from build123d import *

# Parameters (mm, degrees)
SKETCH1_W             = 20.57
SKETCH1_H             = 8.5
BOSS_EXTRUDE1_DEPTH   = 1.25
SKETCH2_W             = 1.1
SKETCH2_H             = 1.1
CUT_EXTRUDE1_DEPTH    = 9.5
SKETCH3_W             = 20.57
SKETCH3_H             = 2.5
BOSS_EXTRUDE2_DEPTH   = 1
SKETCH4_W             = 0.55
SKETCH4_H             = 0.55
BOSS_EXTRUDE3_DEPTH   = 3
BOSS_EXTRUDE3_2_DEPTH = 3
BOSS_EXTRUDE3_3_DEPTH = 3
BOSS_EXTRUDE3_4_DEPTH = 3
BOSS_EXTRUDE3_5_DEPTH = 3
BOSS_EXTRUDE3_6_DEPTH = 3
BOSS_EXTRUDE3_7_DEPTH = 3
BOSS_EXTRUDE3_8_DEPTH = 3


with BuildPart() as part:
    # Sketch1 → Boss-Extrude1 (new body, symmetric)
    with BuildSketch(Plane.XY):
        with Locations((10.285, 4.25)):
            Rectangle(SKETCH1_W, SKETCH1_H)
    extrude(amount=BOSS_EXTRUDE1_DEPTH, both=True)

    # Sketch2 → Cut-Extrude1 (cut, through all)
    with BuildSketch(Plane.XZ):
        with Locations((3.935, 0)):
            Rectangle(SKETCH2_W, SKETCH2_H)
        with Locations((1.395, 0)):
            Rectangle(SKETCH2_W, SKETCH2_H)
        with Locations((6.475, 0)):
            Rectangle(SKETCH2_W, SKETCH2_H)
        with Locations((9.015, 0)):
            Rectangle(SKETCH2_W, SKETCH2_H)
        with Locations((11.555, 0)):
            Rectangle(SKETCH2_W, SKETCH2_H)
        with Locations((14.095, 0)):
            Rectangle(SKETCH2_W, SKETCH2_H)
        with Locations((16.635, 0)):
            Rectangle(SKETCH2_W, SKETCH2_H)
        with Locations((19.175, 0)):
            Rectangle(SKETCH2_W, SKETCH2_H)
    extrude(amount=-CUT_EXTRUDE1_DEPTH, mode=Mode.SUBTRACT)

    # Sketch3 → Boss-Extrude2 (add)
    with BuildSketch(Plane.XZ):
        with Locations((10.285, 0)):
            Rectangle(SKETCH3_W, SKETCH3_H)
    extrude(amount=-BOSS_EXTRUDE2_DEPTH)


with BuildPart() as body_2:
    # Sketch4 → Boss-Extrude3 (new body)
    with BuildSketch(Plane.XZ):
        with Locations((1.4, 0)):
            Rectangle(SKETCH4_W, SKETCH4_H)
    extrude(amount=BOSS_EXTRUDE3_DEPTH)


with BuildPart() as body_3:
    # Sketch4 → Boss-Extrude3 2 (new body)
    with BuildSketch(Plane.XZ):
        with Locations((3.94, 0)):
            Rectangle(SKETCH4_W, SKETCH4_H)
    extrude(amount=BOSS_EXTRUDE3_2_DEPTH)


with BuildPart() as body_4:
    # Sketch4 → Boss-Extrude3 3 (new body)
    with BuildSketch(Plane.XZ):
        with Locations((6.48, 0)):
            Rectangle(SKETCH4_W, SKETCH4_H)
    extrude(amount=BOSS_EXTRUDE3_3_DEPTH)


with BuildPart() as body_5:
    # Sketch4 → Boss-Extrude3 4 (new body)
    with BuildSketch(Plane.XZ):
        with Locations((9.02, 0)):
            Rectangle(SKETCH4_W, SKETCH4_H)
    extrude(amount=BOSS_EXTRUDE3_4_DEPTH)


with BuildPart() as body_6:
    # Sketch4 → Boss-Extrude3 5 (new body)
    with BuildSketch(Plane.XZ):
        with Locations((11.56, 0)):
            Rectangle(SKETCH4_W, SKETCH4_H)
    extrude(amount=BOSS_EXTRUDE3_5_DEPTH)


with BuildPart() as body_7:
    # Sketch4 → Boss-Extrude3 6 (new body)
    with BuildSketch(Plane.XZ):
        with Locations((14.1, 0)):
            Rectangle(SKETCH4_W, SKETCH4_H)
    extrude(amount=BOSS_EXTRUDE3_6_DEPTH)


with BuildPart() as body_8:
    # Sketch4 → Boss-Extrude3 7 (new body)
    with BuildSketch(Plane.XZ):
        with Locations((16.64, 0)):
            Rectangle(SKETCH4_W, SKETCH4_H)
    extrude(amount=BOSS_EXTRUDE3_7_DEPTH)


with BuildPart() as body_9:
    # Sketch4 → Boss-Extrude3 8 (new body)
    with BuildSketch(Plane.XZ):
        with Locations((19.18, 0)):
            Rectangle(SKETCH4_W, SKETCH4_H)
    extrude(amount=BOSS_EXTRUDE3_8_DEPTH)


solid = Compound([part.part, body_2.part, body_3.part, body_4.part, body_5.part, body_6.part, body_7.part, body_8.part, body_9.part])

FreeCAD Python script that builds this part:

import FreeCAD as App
import Part
import Sketcher
Q = App.Units.Quantity

doc = App.newDocument("Part")
body = doc.addObject("PartDesign::Body", "Body")

sketch1 = body.newObject("Sketcher::SketchObject", "Sketch")
sketch1.AttachmentSupport = (doc.getObject("XY_Plane"), [""])
sketch1.MapMode = "FlatFace"
sketch1.addGeometry([
    Part.LineSegment(App.Vector(0, 8, 0), App.Vector(0, 0, 0)),
    Part.LineSegment(App.Vector(0, 0, 0), App.Vector(21, 0, 0)),
    Part.LineSegment(App.Vector(21, 0, 0), App.Vector(21, 8, 0)),
    Part.LineSegment(App.Vector(21, 8, 0), App.Vector(0, 8, 0)),
], False)
sketch1.addConstraint([
    Sketcher.Constraint("Coincident", 0, 2, 1, 1),
    Sketcher.Constraint("Coincident", 1, 2, 2, 1),
    Sketcher.Constraint("Coincident", 2, 2, 3, 1),
    Sketcher.Constraint("Coincident", 3, 2, 0, 1),
    Sketcher.Constraint("Vertical", 0),
    Sketcher.Constraint("Horizontal", 1),
    Sketcher.Constraint("Vertical", 2),
    Sketcher.Constraint("Horizontal", 3),
    Sketcher.Constraint("Coincident", 0, 2, -1, 1),
    Sketcher.Constraint("DistanceY", 0, 2, 0, 1, Q("8.5 mm")),
    Sketcher.Constraint("DistanceX", 1, 1, 1, 2, Q("20.57 mm")),
])
pad1 = body.newObject("PartDesign::Pad", "Pad")
pad1.Profile = sketch1
pad1.Length = 2.5
pad1.Midplane = True

sketch2 = body.newObject("Sketcher::SketchObject", "Sketch001")
sketch2.AttachmentSupport = (doc.getObject("XZ_Plane"), [""])
sketch2.MapMode = "FlatFace"
sketch2.addGeometry([
    Part.LineSegment(App.Vector(3.4, 0.6, 0), App.Vector(3.4, -0.6, 0)),
    Part.LineSegment(App.Vector(3.4, -0.6, 0), App.Vector(4.5, -0.6, 0)),
    Part.LineSegment(App.Vector(4.5, -0.6, 0), App.Vector(4.5, 0.6, 0)),
    Part.LineSegment(App.Vector(4.5, 0.6, 0), App.Vector(3.4, 0.6, 0)),
    Part.LineSegment(App.Vector(0.8, 0.6, 0), App.Vector(0.8, -0.6, 0)),
    Part.LineSegment(App.Vector(0.8, -0.6, 0), App.Vector(1.9, -0.6, 0)),
    Part.LineSegment(App.Vector(1.9, -0.6, 0), App.Vector(1.9, 0.6, 0)),
    Part.LineSegment(App.Vector(1.9, 0.6, 0), App.Vector(0.8, 0.6, 0)),
    Part.LineSegment(App.Vector(5.9, 0.6, 0), App.Vector(5.9, -0.6, 0)),
    Part.LineSegment(App.Vector(5.9, -0.6, 0), App.Vector(7, -0.6, 0)),
    Part.LineSegment(App.Vector(7, -0.6, 0), App.Vector(7, 0.6, 0)),
    Part.LineSegment(App.Vector(7, 0.6, 0), App.Vector(5.9, 0.6, 0)),
    Part.LineSegment(App.Vector(8.5, 0.6, 0), App.Vector(8.5, -0.6, 0)),
    Part.LineSegment(App.Vector(8.5, -0.6, 0), App.Vector(9.6, -0.6, 0)),
    Part.LineSegment(App.Vector(9.6, -0.6, 0), App.Vector(9.6, 0.6, 0)),
    Part.LineSegment(App.Vector(9.6, 0.6, 0), App.Vector(8.5, 0.6, 0)),
    Part.LineSegment(App.Vector(11, 0.6, 0), App.Vector(11, -0.6, 0)),
    Part.LineSegment(App.Vector(11, -0.6, 0), App.Vector(12.1, -0.6, 0)),
    Part.LineSegment(App.Vector(12.1, -0.6, 0), App.Vector(12.1, 0.6, 0)),
    Part.LineSegment(App.Vector(12.1, 0.6, 0), App.Vector(11, 0.6, 0)),
    Part.LineSegment(App.Vector(13.5, 0.6, 0), App.Vector(13.5, -0.6, 0)),
    Part.LineSegment(App.Vector(13.5, -0.6, 0), App.Vector(14.6, -0.6, 0)),
    Part.LineSegment(App.Vector(14.6, -0.6, 0), App.Vector(14.6, 0.6, 0)),
    Part.LineSegment(App.Vector(14.6, 0.6, 0), App.Vector(13.5, 0.6, 0)),
    Part.LineSegment(App.Vector(16.1, 0.6, 0), App.Vector(16.1, -0.6, 0)),
    Part.LineSegment(App.Vector(16.1, -0.6, 0), App.Vector(17.2, -0.6, 0)),
    Part.LineSegment(App.Vector(17.2, -0.6, 0), App.Vector(17.2, 0.6, 0)),
    Part.LineSegment(App.Vector(17.2, 0.6, 0), App.Vector(16.1, 0.6, 0)),
    Part.LineSegment(App.Vector(18.6, 0.6, 0), App.Vector(18.6, -0.6, 0)),
    Part.LineSegment(App.Vector(18.6, -0.6, 0), App.Vector(19.7, -0.6, 0)),
    Part.LineSegment(App.Vector(19.7, -0.6, 0), App.Vector(19.7, 0.6, 0)),
    Part.LineSegment(App.Vector(19.7, 0.6, 0), App.Vector(18.6, 0.6, 0)),
], False)
sketch2.addConstraint([
    Sketcher.Constraint("Coincident", 0, 2, 1, 1),
    Sketcher.Constraint("Coincident", 1, 2, 2, 1),
    Sketcher.Constraint("Coincident", 2, 2, 3, 1),
    Sketcher.Constraint("Coincident", 3, 2, 0, 1),
    Sketcher.Constraint("Coincident", 4, 2, 5, 1),
    Sketcher.Constraint("Coincident", 5, 2, 6, 1),
    Sketcher.Constraint("Coincident", 6, 2, 7, 1),
    Sketcher.Constraint("Coincident", 7, 2, 4, 1),
    Sketcher.Constraint("Coincident", 8, 2, 9, 1),
    Sketcher.Constraint("Coincident", 9, 2, 10, 1),
    Sketcher.Constraint("Coincident", 10, 2, 11, 1),
    Sketcher.Constraint("Coincident", 11, 2, 8, 1),
    Sketcher.Constraint("Coincident", 12, 2, 13, 1),
    Sketcher.Constraint("Coincident", 13, 2, 14, 1),
    Sketcher.Constraint("Coincident", 14, 2, 15, 1),
    Sketcher.Constraint("Coincident", 15, 2, 12, 1),
    Sketcher.Constraint("Coincident", 16, 2, 17, 1),
    Sketcher.Constraint("Coincident", 17, 2, 18, 1),
    Sketcher.Constraint("Coincident", 18, 2, 19, 1),
    Sketcher.Constraint("Coincident", 19, 2, 16, 1),
    Sketcher.Constraint("Coincident", 20, 2, 21, 1),
    Sketcher.Constraint("Coincident", 21, 2, 22, 1),
    Sketcher.Constraint("Coincident", 22, 2, 23, 1),
    Sketcher.Constraint("Coincident", 23, 2, 20, 1),
    Sketcher.Constraint("Coincident", 24, 2, 25, 1),
    Sketcher.Constraint("Coincident", 25, 2, 26, 1),
    Sketcher.Constraint("Coincident", 26, 2, 27, 1),
    Sketcher.Constraint("Coincident", 27, 2, 24, 1),
    Sketcher.Constraint("Coincident", 28, 2, 29, 1),
    Sketcher.Constraint("Coincident", 29, 2, 30, 1),
    Sketcher.Constraint("Coincident", 30, 2, 31, 1),
    Sketcher.Constraint("Coincident", 31, 2, 28, 1),
    Sketcher.Constraint("Vertical", 0),
    Sketcher.Constraint("Horizontal", 1),
    Sketcher.Constraint("Vertical", 2),
    Sketcher.Constraint("Horizontal", 3),
    Sketcher.Constraint("Vertical", 4),
    Sketcher.Constraint("Horizontal", 5),
    Sketcher.Constraint("Vertical", 6),
    Sketcher.Constraint("Horizontal", 7),
    Sketcher.Constraint("Vertical", 8),
    Sketcher.Constraint("Horizontal", 9),
    Sketcher.Constraint("Vertical", 10),
    Sketcher.Constraint("Horizontal", 11),
    Sketcher.Constraint("Vertical", 12),
    Sketcher.Constraint("Horizontal", 13),
    Sketcher.Constraint("Vertical", 14),
    Sketcher.Constraint("Horizontal", 15),
    Sketcher.Constraint("Vertical", 16),
    Sketcher.Constraint("Horizontal", 17),
    Sketcher.Constraint("Vertical", 18),
    Sketcher.Constraint("Horizontal", 19),
    Sketcher.Constraint("Vertical", 20),
    Sketcher.Constraint("Horizontal", 21),
    Sketcher.Constraint("Vertical", 22),
    Sketcher.Constraint("Horizontal", 23),
    Sketcher.Constraint("Vertical", 24),
    Sketcher.Constraint("Horizontal", 25),
    Sketcher.Constraint("Vertical", 26),
    Sketcher.Constraint("Horizontal", 27),
    Sketcher.Constraint("Vertical", 28),
    Sketcher.Constraint("Horizontal", 29),
    Sketcher.Constraint("Vertical", 30),
    Sketcher.Constraint("Horizontal", 31),
    Sketcher.Constraint("Horizontal", 1, 2, 4, 2),
    Sketcher.Constraint("Horizontal", 3, 2, 6, 2),
    Sketcher.Constraint("Horizontal", 5, 2, 8, 2),
    Sketcher.Constraint("Horizontal", 7, 2, 10, 2),
    Sketcher.Constraint("Horizontal", 9, 2, 12, 2),
    Sketcher.Constraint("Horizontal", 11, 2, 14, 2),
    Sketcher.Constraint("Horizontal", 13, 2, 16, 2),
    Sketcher.Constraint("Horizontal", 15, 2, 18, 2),
    Sketcher.Constraint("Horizontal", 17, 2, 20, 2),
    Sketcher.Constraint("Horizontal", 19, 2, 22, 2),
    Sketcher.Constraint("Horizontal", 21, 2, 24, 2),
    Sketcher.Constraint("Horizontal", 23, 2, 26, 2),
    Sketcher.Constraint("Horizontal", 25, 2, 28, 2),
    Sketcher.Constraint("Horizontal", 27, 2, 30, 2),
    Sketcher.Constraint("Equal", 3, 5),
    Sketcher.Constraint("Equal", 7, 9),
    Sketcher.Constraint("Equal", 11, 13),
    Sketcher.Constraint("Equal", 15, 17),
    Sketcher.Constraint("Equal", 19, 21),
    Sketcher.Constraint("Equal", 23, 25),
    Sketcher.Constraint("Equal", 27, 29),
    Sketcher.Constraint("Equal", 31, 0),
    Sketcher.Constraint("DistanceX", 1, 1, 1, 2, Q("1.1 mm")),
    Sketcher.Constraint("DistanceY", 0, 2, -1, 1, Q("0.55 mm")),
    Sketcher.Constraint("DistanceX", 4, 2, 0, 2, Q("2.54 mm")),
    Sketcher.Constraint("DistanceX", 1, 2, 8, 2, Q("1.44 mm")),
    Sketcher.Constraint("DistanceX", 9, 2, 12, 2, Q("1.44 mm")),
    Sketcher.Constraint("DistanceX", 13, 2, 16, 2, Q("1.44 mm")),
    Sketcher.Constraint("DistanceX", 17, 2, 20, 2, Q("1.44 mm")),
    Sketcher.Constraint("DistanceX", 21, 2, 24, 2, Q("1.44 mm")),
    Sketcher.Constraint("DistanceX", 25, 2, 28, 2, Q("1.44 mm")),
    Sketcher.Constraint("DistanceX", -1, 1, 0, 2, Q("3.385 mm")),
])
pocket1 = body.newObject("PartDesign::Pocket", "Pocket")
pocket1.Profile = sketch2
pocket1.Type = "ThroughAll"

sketch3 = body.newObject("Sketcher::SketchObject", "Sketch002")
sketch3.AttachmentSupport = (doc.getObject("XZ_Plane"), [""])
sketch3.MapMode = "FlatFace"
sketch3.addGeometry([
    Part.LineSegment(App.Vector(0, 1.2, 0), App.Vector(0, -1.2, 0)),
    Part.LineSegment(App.Vector(0, -1.2, 0), App.Vector(20.6, -1.2, 0)),
    Part.LineSegment(App.Vector(20.6, -1.2, 0), App.Vector(20.6, 1.2, 0)),
    Part.LineSegment(App.Vector(20.6, 1.2, 0), App.Vector(0, 1.2, 0)),
], False)
sketch3.addConstraint([
    Sketcher.Constraint("Coincident", 0, 2, 1, 1),
    Sketcher.Constraint("Coincident", 1, 2, 2, 1),
    Sketcher.Constraint("Coincident", 2, 2, 3, 1),
    Sketcher.Constraint("Coincident", 3, 2, 0, 1),
    Sketcher.Constraint("Vertical", 0),
    Sketcher.Constraint("Horizontal", 1),
    Sketcher.Constraint("Vertical", 2),
    Sketcher.Constraint("Horizontal", 3),
    Sketcher.Constraint("Symmetric", 0, 2, 3, 2, -1, 1),
    Sketcher.Constraint("DistanceY", 0, 2, 0, 1, Q("2.5 mm")),
    Sketcher.Constraint("DistanceX", 1, 1, 1, 2, Q("20.57 mm")),
])
pad2 = body.newObject("PartDesign::Pad", "Pad001")
pad2.Profile = sketch3
pad2.Length = 1
pad2.Reversed = True
body2 = doc.addObject("PartDesign::Body", "Body001")

sketch4 = body2.newObject("Sketcher::SketchObject", "Sketch003")
sketch4.AttachmentSupport = (doc.getObject("XZ_Plane001"), [""])
sketch4.MapMode = "FlatFace"
sketch4.addGeometry([
    Part.LineSegment(App.Vector(1.1, 0.3, 0), App.Vector(1.1, -0.3, 0)),
    Part.LineSegment(App.Vector(1.1, -0.3, 0), App.Vector(1.7, -0.3, 0)),
    Part.LineSegment(App.Vector(1.7, -0.3, 0), App.Vector(1.7, 0.3, 0)),
    Part.LineSegment(App.Vector(1.7, 0.3, 0), App.Vector(1.1, 0.3, 0)),
], False)
sketch4.addConstraint([
    Sketcher.Constraint("Coincident", 0, 2, 1, 1),
    Sketcher.Constraint("Coincident", 1, 2, 2, 1),
    Sketcher.Constraint("Coincident", 2, 2, 3, 1),
    Sketcher.Constraint("Coincident", 3, 2, 0, 1),
    Sketcher.Constraint("Vertical", 0),
    Sketcher.Constraint("Horizontal", 1),
    Sketcher.Constraint("Vertical", 2),
    Sketcher.Constraint("Horizontal", 3),
    Sketcher.Constraint("Equal", 3, 0),
    Sketcher.Constraint("DistanceX", 1, 1, 1, 2, Q("0.55 mm")),
    Sketcher.Constraint("DistanceX", -1, 1, 0, 2, Q("1.125 mm")),
    Sketcher.Constraint("DistanceY", 0, 2, -1, 1, Q("0.275 mm")),
])
pad3 = body2.newObject("PartDesign::Pad", "Pad002")
pad3.Profile = sketch4
pad3.Length = 3
body3 = doc.addObject("PartDesign::Body", "Body002")

sketch5 = body3.newObject("Sketcher::SketchObject", "Sketch004")
sketch5.AttachmentSupport = (doc.getObject("XZ_Plane002"), [""])
sketch5.MapMode = "FlatFace"
sketch5.addGeometry([
    Part.LineSegment(App.Vector(3.7, 0.3, 0), App.Vector(3.7, -0.3, 0)),
    Part.LineSegment(App.Vector(3.7, -0.3, 0), App.Vector(4.2, -0.3, 0)),
    Part.LineSegment(App.Vector(4.2, -0.3, 0), App.Vector(4.2, 0.3, 0)),
    Part.LineSegment(App.Vector(4.2, 0.3, 0), App.Vector(3.7, 0.3, 0)),
], False)
sketch5.addConstraint([
    Sketcher.Constraint("Coincident", 0, 2, 1, 1),
    Sketcher.Constraint("Coincident", 1, 2, 2, 1),
    Sketcher.Constraint("Coincident", 2, 2, 3, 1),
    Sketcher.Constraint("Coincident", 3, 2, 0, 1),
    Sketcher.Constraint("Vertical", 0),
    Sketcher.Constraint("Horizontal", 1),
    Sketcher.Constraint("Vertical", 2),
    Sketcher.Constraint("Horizontal", 3),
    Sketcher.Constraint("Equal", 3, 0),
    Sketcher.Constraint("DistanceX", 1, 1, 1, 2, Q("0.55 mm")),
    Sketcher.Constraint("DistanceX", -1, 1, 0, 2, Q("3.665 mm")),
    Sketcher.Constraint("DistanceY", 0, 2, -1, 1, Q("0.275 mm")),
])
pad4 = body3.newObject("PartDesign::Pad", "Pad003")
pad4.Profile = sketch5
pad4.Length = 3
body4 = doc.addObject("PartDesign::Body", "Body003")

sketch6 = body4.newObject("Sketcher::SketchObject", "Sketch005")
sketch6.AttachmentSupport = (doc.getObject("XZ_Plane003"), [""])
sketch6.MapMode = "FlatFace"
sketch6.addGeometry([
    Part.LineSegment(App.Vector(6.2, 0.3, 0), App.Vector(6.2, -0.3, 0)),
    Part.LineSegment(App.Vector(6.2, -0.3, 0), App.Vector(6.8, -0.3, 0)),
    Part.LineSegment(App.Vector(6.8, -0.3, 0), App.Vector(6.8, 0.3, 0)),
    Part.LineSegment(App.Vector(6.8, 0.3, 0), App.Vector(6.2, 0.3, 0)),
], False)
sketch6.addConstraint([
    Sketcher.Constraint("Coincident", 0, 2, 1, 1),
    Sketcher.Constraint("Coincident", 1, 2, 2, 1),
    Sketcher.Constraint("Coincident", 2, 2, 3, 1),
    Sketcher.Constraint("Coincident", 3, 2, 0, 1),
    Sketcher.Constraint("Vertical", 0),
    Sketcher.Constraint("Horizontal", 1),
    Sketcher.Constraint("Vertical", 2),
    Sketcher.Constraint("Horizontal", 3),
    Sketcher.Constraint("Equal", 3, 0),
    Sketcher.Constraint("DistanceX", 1, 1, 1, 2, Q("0.55 mm")),
    Sketcher.Constraint("DistanceX", -1, 1, 0, 2, Q("6.205 mm")),
    Sketcher.Constraint("DistanceY", 0, 2, -1, 1, Q("0.275 mm")),
])
pad5 = body4.newObject("PartDesign::Pad", "Pad004")
pad5.Profile = sketch6
pad5.Length = 3
body5 = doc.addObject("PartDesign::Body", "Body004")

sketch7 = body5.newObject("Sketcher::SketchObject", "Sketch006")
sketch7.AttachmentSupport = (doc.getObject("XZ_Plane004"), [""])
sketch7.MapMode = "FlatFace"
sketch7.addGeometry([
    Part.LineSegment(App.Vector(8.7, 0.3, 0), App.Vector(8.7, -0.3, 0)),
    Part.LineSegment(App.Vector(8.7, -0.3, 0), App.Vector(9.3, -0.3, 0)),
    Part.LineSegment(App.Vector(9.3, -0.3, 0), App.Vector(9.3, 0.3, 0)),
    Part.LineSegment(App.Vector(9.3, 0.3, 0), App.Vector(8.7, 0.3, 0)),
], False)
sketch7.addConstraint([
    Sketcher.Constraint("Coincident", 0, 2, 1, 1),
    Sketcher.Constraint("Coincident", 1, 2, 2, 1),
    Sketcher.Constraint("Coincident", 2, 2, 3, 1),
    Sketcher.Constraint("Coincident", 3, 2, 0, 1),
    Sketcher.Constraint("Vertical", 0),
    Sketcher.Constraint("Horizontal", 1),
    Sketcher.Constraint("Vertical", 2),
    Sketcher.Constraint("Horizontal", 3),
    Sketcher.Constraint("Equal", 3, 0),
    Sketcher.Constraint("DistanceX", 1, 1, 1, 2, Q("0.55 mm")),
    Sketcher.Constraint("DistanceX", -1, 1, 0, 2, Q("8.745 mm")),
    Sketcher.Constraint("DistanceY", 0, 2, -1, 1, Q("0.275 mm")),
])
pad6 = body5.newObject("PartDesign::Pad", "Pad005")
pad6.Profile = sketch7
pad6.Length = 3
body6 = doc.addObject("PartDesign::Body", "Body005")

sketch8 = body6.newObject("Sketcher::SketchObject", "Sketch007")
sketch8.AttachmentSupport = (doc.getObject("XZ_Plane005"), [""])
sketch8.MapMode = "FlatFace"
sketch8.addGeometry([
    Part.LineSegment(App.Vector(11.3, 0.3, 0), App.Vector(11.3, -0.3, 0)),
    Part.LineSegment(App.Vector(11.3, -0.3, 0), App.Vector(11.8, -0.3, 0)),
    Part.LineSegment(App.Vector(11.8, -0.3, 0), App.Vector(11.8, 0.3, 0)),
    Part.LineSegment(App.Vector(11.8, 0.3, 0), App.Vector(11.3, 0.3, 0)),
], False)
sketch8.addConstraint([
    Sketcher.Constraint("Coincident", 0, 2, 1, 1),
    Sketcher.Constraint("Coincident", 1, 2, 2, 1),
    Sketcher.Constraint("Coincident", 2, 2, 3, 1),
    Sketcher.Constraint("Coincident", 3, 2, 0, 1),
    Sketcher.Constraint("Vertical", 0),
    Sketcher.Constraint("Horizontal", 1),
    Sketcher.Constraint("Vertical", 2),
    Sketcher.Constraint("Horizontal", 3),
    Sketcher.Constraint("Equal", 3, 0),
    Sketcher.Constraint("DistanceX", 1, 1, 1, 2, Q("0.55 mm")),
    Sketcher.Constraint("DistanceX", -1, 1, 0, 2, Q("11.285 mm")),
    Sketcher.Constraint("DistanceY", 0, 2, -1, 1, Q("0.275 mm")),
])
pad7 = body6.newObject("PartDesign::Pad", "Pad006")
pad7.Profile = sketch8
pad7.Length = 3
body7 = doc.addObject("PartDesign::Body", "Body006")

sketch9 = body7.newObject("Sketcher::SketchObject", "Sketch008")
sketch9.AttachmentSupport = (doc.getObject("XZ_Plane006"), [""])
sketch9.MapMode = "FlatFace"
sketch9.addGeometry([
    Part.LineSegment(App.Vector(13.8, 0.3, 0), App.Vector(13.8, -0.3, 0)),
    Part.LineSegment(App.Vector(13.8, -0.3, 0), App.Vector(14.4, -0.3, 0)),
    Part.LineSegment(App.Vector(14.4, -0.3, 0), App.Vector(14.4, 0.3, 0)),
    Part.LineSegment(App.Vector(14.4, 0.3, 0), App.Vector(13.8, 0.3, 0)),
], False)
sketch9.addConstraint([
    Sketcher.Constraint("Coincident", 0, 2, 1, 1),
    Sketcher.Constraint("Coincident", 1, 2, 2, 1),
    Sketcher.Constraint("Coincident", 2, 2, 3, 1),
    Sketcher.Constraint("Coincident", 3, 2, 0, 1),
    Sketcher.Constraint("Vertical", 0),
    Sketcher.Constraint("Horizontal", 1),
    Sketcher.Constraint("Vertical", 2),
    Sketcher.Constraint("Horizontal", 3),
    Sketcher.Constraint("Equal", 3, 0),
    Sketcher.Constraint("DistanceX", 1, 1, 1, 2, Q("0.55 mm")),
    Sketcher.Constraint("DistanceX", -1, 1, 0, 2, Q("13.825 mm")),
    Sketcher.Constraint("DistanceY", 0, 2, -1, 1, Q("0.275 mm")),
])
pad8 = body7.newObject("PartDesign::Pad", "Pad007")
pad8.Profile = sketch9
pad8.Length = 3
body8 = doc.addObject("PartDesign::Body", "Body007")

sketch10 = body8.newObject("Sketcher::SketchObject", "Sketch009")
sketch10.AttachmentSupport = (doc.getObject("XZ_Plane007"), [""])
sketch10.MapMode = "FlatFace"
sketch10.addGeometry([
    Part.LineSegment(App.Vector(16.4, 0.3, 0), App.Vector(16.4, -0.3, 0)),
    Part.LineSegment(App.Vector(16.4, -0.3, 0), App.Vector(16.9, -0.3, 0)),
    Part.LineSegment(App.Vector(16.9, -0.3, 0), App.Vector(16.9, 0.3, 0)),
    Part.LineSegment(App.Vector(16.9, 0.3, 0), App.Vector(16.4, 0.3, 0)),
], False)
sketch10.addConstraint([
    Sketcher.Constraint("Coincident", 0, 2, 1, 1),
    Sketcher.Constraint("Coincident", 1, 2, 2, 1),
    Sketcher.Constraint("Coincident", 2, 2, 3, 1),
    Sketcher.Constraint("Coincident", 3, 2, 0, 1),
    Sketcher.Constraint("Vertical", 0),
    Sketcher.Constraint("Horizontal", 1),
    Sketcher.Constraint("Vertical", 2),
    Sketcher.Constraint("Horizontal", 3),
    Sketcher.Constraint("Equal", 3, 0),
    Sketcher.Constraint("DistanceX", 1, 1, 1, 2, Q("0.55 mm")),
    Sketcher.Constraint("DistanceX", -1, 1, 0, 2, Q("16.365 mm")),
    Sketcher.Constraint("DistanceY", 0, 2, -1, 1, Q("0.275 mm")),
])
pad9 = body8.newObject("PartDesign::Pad", "Pad008")
pad9.Profile = sketch10
pad9.Length = 3
body9 = doc.addObject("PartDesign::Body", "Body008")

sketch11 = body9.newObject("Sketcher::SketchObject", "Sketch010")
sketch11.AttachmentSupport = (doc.getObject("XZ_Plane008"), [""])
sketch11.MapMode = "FlatFace"
sketch11.addGeometry([
    Part.LineSegment(App.Vector(18.9, 0.3, 0), App.Vector(18.9, -0.3, 0)),
    Part.LineSegment(App.Vector(18.9, -0.3, 0), App.Vector(19.5, -0.3, 0)),
    Part.LineSegment(App.Vector(19.5, -0.3, 0), App.Vector(19.5, 0.3, 0)),
    Part.LineSegment(App.Vector(19.5, 0.3, 0), App.Vector(18.9, 0.3, 0)),
], False)
sketch11.addConstraint([
    Sketcher.Constraint("Coincident", 0, 2, 1, 1),
    Sketcher.Constraint("Coincident", 1, 2, 2, 1),
    Sketcher.Constraint("Coincident", 2, 2, 3, 1),
    Sketcher.Constraint("Coincident", 3, 2, 0, 1),
    Sketcher.Constraint("Vertical", 0),
    Sketcher.Constraint("Horizontal", 1),
    Sketcher.Constraint("Vertical", 2),
    Sketcher.Constraint("Horizontal", 3),
    Sketcher.Constraint("Equal", 3, 0),
    Sketcher.Constraint("DistanceX", 1, 1, 1, 2, Q("0.55 mm")),
    Sketcher.Constraint("DistanceX", -1, 1, 0, 2, Q("18.905 mm")),
    Sketcher.Constraint("DistanceY", 0, 2, -1, 1, Q("0.275 mm")),
])
pad10 = body9.newObject("PartDesign::Pad", "Pad009")
pad10.Profile = sketch11
pad10.Length = 3

doc.recompute()
